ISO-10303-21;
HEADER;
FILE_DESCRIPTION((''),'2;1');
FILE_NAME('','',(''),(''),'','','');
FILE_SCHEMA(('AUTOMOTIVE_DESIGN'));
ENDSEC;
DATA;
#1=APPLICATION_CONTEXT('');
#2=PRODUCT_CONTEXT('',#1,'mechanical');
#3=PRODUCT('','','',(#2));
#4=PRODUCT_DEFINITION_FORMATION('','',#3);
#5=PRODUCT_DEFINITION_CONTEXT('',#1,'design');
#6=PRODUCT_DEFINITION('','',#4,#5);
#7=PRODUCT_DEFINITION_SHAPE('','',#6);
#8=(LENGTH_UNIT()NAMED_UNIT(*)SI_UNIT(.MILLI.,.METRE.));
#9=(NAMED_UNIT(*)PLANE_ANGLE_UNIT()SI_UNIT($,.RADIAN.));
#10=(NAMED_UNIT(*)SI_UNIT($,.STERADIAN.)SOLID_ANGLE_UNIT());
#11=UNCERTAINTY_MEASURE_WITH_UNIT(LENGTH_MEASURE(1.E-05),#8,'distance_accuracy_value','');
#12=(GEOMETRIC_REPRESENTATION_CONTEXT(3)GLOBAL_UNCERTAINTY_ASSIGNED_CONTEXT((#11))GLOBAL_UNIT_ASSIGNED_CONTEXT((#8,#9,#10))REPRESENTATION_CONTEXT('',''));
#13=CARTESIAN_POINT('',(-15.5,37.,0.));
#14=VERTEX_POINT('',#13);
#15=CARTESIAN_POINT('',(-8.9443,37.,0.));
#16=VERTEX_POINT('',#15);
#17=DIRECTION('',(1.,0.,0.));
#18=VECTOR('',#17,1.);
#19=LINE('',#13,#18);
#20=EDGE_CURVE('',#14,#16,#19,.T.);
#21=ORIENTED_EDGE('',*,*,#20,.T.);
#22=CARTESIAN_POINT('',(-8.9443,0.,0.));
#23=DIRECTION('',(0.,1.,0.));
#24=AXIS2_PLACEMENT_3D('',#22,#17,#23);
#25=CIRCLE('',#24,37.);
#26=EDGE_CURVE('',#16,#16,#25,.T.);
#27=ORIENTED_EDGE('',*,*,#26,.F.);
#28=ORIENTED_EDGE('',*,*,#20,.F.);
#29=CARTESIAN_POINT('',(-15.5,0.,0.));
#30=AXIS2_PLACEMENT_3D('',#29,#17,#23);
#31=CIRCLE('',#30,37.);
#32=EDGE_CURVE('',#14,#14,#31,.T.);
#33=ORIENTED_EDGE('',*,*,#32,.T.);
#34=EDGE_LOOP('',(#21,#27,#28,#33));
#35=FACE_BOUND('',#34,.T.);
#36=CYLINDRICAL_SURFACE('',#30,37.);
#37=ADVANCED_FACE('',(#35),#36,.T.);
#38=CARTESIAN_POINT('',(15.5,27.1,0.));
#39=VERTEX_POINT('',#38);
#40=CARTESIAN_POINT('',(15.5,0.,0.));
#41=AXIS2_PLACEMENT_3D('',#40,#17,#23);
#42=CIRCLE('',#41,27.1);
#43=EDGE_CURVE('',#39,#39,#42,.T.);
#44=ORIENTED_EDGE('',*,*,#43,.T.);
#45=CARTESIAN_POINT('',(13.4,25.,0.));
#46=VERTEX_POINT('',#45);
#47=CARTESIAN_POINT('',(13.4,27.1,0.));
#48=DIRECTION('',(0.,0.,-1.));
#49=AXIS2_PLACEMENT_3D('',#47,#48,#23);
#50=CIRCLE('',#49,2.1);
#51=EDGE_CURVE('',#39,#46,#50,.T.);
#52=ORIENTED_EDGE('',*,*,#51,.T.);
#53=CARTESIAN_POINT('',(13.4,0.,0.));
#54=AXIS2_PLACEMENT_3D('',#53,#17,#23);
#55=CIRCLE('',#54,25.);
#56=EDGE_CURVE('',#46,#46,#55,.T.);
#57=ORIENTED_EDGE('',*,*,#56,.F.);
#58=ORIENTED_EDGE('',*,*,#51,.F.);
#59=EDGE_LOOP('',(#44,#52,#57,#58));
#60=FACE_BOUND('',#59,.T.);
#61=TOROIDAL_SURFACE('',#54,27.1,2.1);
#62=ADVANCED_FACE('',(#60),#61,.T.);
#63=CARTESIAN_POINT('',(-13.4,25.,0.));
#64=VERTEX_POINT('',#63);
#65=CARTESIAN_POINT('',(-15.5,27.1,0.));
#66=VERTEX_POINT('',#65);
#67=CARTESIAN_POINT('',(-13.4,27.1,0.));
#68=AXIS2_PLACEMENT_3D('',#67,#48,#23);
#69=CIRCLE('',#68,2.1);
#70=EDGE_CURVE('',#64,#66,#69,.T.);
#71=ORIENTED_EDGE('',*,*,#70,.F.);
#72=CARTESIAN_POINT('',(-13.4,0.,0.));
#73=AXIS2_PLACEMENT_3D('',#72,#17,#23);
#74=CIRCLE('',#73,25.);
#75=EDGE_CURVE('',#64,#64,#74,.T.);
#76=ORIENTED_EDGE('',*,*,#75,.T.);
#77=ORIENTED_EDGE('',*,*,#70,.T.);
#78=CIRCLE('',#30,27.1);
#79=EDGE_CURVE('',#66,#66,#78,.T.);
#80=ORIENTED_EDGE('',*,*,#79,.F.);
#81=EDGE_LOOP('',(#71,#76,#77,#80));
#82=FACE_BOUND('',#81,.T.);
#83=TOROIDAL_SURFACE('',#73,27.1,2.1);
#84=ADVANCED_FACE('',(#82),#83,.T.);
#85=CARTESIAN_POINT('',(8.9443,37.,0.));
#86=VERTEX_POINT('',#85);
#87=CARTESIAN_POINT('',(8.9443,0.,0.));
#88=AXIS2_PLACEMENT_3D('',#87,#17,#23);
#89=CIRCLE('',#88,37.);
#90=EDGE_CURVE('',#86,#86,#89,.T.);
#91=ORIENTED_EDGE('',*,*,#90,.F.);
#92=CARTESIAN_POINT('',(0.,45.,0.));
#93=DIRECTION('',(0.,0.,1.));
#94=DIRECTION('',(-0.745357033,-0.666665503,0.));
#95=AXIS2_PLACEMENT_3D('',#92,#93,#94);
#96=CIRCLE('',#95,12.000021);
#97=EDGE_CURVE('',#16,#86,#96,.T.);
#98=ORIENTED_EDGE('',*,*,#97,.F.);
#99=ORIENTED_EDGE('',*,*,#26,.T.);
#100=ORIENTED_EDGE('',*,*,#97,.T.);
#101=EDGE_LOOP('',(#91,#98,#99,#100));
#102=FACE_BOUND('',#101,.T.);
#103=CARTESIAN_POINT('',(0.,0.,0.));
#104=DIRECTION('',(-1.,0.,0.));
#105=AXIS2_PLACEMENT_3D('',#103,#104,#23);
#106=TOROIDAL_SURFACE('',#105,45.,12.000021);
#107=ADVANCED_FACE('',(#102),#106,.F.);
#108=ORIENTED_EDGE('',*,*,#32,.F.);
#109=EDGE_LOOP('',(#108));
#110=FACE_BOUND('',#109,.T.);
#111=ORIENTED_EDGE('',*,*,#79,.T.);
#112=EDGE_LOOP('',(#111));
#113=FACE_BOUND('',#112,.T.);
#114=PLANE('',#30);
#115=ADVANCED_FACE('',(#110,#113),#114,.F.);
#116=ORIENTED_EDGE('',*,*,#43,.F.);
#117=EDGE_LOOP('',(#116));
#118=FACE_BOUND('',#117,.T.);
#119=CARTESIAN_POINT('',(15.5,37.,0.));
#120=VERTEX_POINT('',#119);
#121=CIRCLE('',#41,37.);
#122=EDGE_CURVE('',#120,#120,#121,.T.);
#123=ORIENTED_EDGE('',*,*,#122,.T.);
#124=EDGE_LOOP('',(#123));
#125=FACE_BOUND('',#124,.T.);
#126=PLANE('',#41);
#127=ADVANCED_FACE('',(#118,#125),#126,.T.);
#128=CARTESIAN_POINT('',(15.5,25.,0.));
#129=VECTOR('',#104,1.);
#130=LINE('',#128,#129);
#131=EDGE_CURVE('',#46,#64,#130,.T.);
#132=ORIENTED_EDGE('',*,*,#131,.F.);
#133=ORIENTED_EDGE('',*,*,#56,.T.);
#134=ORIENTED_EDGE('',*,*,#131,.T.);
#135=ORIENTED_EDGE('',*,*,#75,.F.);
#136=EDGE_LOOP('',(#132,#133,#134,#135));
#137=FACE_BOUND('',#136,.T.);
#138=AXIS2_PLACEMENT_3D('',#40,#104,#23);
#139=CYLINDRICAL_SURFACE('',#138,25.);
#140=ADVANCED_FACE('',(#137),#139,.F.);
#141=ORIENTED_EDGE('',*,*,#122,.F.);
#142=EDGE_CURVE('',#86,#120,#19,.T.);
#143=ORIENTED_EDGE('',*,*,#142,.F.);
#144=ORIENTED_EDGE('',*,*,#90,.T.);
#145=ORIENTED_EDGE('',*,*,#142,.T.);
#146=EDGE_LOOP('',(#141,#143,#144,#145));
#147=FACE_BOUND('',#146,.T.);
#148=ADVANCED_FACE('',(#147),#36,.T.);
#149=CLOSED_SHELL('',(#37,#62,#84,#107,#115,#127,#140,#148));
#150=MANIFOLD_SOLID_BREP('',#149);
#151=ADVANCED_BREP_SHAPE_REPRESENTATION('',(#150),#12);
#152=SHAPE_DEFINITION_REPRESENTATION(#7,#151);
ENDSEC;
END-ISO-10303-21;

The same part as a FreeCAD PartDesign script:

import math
import FreeCAD as App
import Part
import Sketcher
Q = App.Units.Quantity


def edges_at(feature, points):
    """Names of the edges that pass closest to the given points."""
    edges = feature.Shape.Edges
    near = lambda p: min(range(len(edges)), key=lambda i: edges[i].distToShape(Part.Vertex(*p))[0])
    return sorted({f"Edge{near(p) + 1}" for p in points})

doc = App.newDocument("Part")
body = doc.addObject("PartDesign::Body", "Body")

# Sketch on XY plane
sketch1 = body.newObject("Sketcher::SketchObject", "Sketch")
sketch1.AttachmentSupport = (doc.getObject("XY_Plane"), [""])
sketch1.MapMode = "FlatFace"
sketch1.addGeometry([
    Part.LineSegment(App.Vector(-8.9443, 37, 0), App.Vector(-15.5, 37, 0)),  # 0
    Part.LineSegment(App.Vector(-15.5, 37, 0), App.Vector(-15.5, 25, 0)),  # 1
    Part.LineSegment(App.Vector(-15.5, 25, 0), App.Vector(15.5, 25, 0)),  # 2
    Part.LineSegment(App.Vector(15.5, 25, 0), App.Vector(15.5, 37, 0)),  # 3
    Part.LineSegment(App.Vector(15.5, 37, 0), App.Vector(8.9443, 37, 0)),  # 4
    Part.ArcOfCircle(Part.Circle(App.Vector(0, 45, 0), App.Vector(0, 0, 1), 12.000021), math.radians(-138.189775), math.radians(-41.810225)),  # 5
], False)
sketch1.addConstraint([
    Sketcher.Constraint("Coincident", 0, 2, 1, 1),
    Sketcher.Constraint("Coincident", 1, 2, 2, 1),
    Sketcher.Constraint("Coincident", 2, 2, 3, 1),
    Sketcher.Constraint("Coincident", 3, 2, 4, 1),
    Sketcher.Constraint("Coincident", 4, 2, 5, 2),
    Sketcher.Constraint("Coincident", 5, 1, 0, 1),
    Sketcher.Constraint("Horizontal", 0),
    Sketcher.Constraint("Vertical", 1),
    Sketcher.Constraint("Horizontal", 2),
    Sketcher.Constraint("Vertical", 3),
    Sketcher.Constraint("Horizontal", 4),
    Sketcher.Constraint("Symmetric", 0, 2, 3, 2, -2),
    Sketcher.Constraint("PointOnObject", 5, 3, -2),
    Sketcher.Constraint("Radius", 5, Q("12 mm")),
    Sketcher.Constraint("DistanceX", 2, 1, 2, 2, Q("31 mm")),
    Sketcher.Constraint("DistanceY", 1, 2, 1, 1, Q("12 mm")),
    Sketcher.Constraint("DistanceY", -1, 1, 1, 2, Q("25 mm")),
    Sketcher.Constraint("DistanceY", 0, 2, 5, 3, Q("8 mm")),
])
revolution = body.newObject("PartDesign::Revolution", "Revolution")
revolution.Profile = sketch1
revolution.ReferenceAxis = (sketch1, ["H_Axis"])
revolution.Angle = 360
doc.recompute()

fillet = body.newObject("PartDesign::Fillet", "Fillet")
fillet.Base = (revolution, edges_at(revolution, [(15.5, -25, 0), (-15.5, -25, 0)]))
fillet.Radius = 2.1

doc.recompute()
